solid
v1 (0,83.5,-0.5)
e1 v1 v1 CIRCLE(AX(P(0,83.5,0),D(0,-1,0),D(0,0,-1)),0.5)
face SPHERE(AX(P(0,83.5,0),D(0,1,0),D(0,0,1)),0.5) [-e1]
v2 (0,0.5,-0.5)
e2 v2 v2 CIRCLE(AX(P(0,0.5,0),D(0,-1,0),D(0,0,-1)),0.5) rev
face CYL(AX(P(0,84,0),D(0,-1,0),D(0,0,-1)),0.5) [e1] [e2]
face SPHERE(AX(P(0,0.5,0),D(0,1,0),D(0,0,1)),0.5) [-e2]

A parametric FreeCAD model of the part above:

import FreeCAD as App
import Part
import Sketcher

V = App.Vector


def edges_at(feature, points):
    """Names of the edges that pass closest to the given points."""
    edges = feature.Shape.Edges
    near = lambda p: min(range(len(edges)), key=lambda i: edges[i].distToShape(Part.Vertex(*p))[0])
    return sorted({f"Edge{near(p) + 1}" for p in points})

doc = App.newDocument("Part")
body = doc.addObject("PartDesign::Body", "Body")

# Sketch on XZ plane
sketch1 = body.newObject("Sketcher::SketchObject", "Sketch")
sketch1.AttachmentSupport = (doc.getObject("XZ_Plane"), [""])
sketch1.MapMode = "FlatFace"
sketch1.addGeometry(Part.Circle(V(0, 0, 0), V(0, 0, 1), 0.5), False)
sketch1.addConstraint([
    Sketcher.Constraint("Coincident", 0, 3, -1, 1),
    Sketcher.Constraint("Diameter", 0, 1.0),
])
pad1 = body.newObject("PartDesign::Pad", "Pad")
pad1.Profile = sketch1
pad1.Length = 84
pad1.Reversed = True
doc.recompute()

fillet = body.newObject("PartDesign::Fillet", "Fillet")
fillet.Base = (pad1, edges_at(pad1, [(-0.5, 84, 0)]))
fillet.Radius = 0.5
doc.recompute()

fillet2 = body.newObject("PartDesign::Fillet", "Fillet001")
fillet2.Base = (fillet, edges_at(fillet, [(-0.5, 0, 0)]))
fillet2.Radius = 0.5

doc.recompute()
